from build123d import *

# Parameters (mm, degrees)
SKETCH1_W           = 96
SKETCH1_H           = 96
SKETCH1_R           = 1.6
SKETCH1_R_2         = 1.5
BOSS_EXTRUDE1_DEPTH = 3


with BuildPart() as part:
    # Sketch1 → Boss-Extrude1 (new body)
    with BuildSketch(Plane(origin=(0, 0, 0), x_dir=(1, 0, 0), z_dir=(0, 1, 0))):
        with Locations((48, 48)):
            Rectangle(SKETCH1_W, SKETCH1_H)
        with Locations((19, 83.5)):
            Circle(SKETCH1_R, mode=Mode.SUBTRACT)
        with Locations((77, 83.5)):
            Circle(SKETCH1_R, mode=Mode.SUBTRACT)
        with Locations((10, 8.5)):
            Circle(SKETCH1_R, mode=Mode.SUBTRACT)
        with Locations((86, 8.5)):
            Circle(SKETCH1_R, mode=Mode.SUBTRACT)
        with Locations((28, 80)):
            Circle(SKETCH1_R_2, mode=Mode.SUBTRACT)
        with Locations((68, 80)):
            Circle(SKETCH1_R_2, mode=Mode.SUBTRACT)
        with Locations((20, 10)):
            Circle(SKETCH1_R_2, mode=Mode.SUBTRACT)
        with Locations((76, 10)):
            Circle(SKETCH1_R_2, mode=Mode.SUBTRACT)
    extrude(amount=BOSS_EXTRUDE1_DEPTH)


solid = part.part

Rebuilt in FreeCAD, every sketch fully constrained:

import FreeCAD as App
import Part
import Sketcher


def add_polygon(sketch, points):
    """Adds a closed chain of lines whose ends are joined by coincident constraints."""
    first, n = sketch.GeometryCount, len(points)
    for a, b in zip(points, points[1:] + points[:1]):
        sketch.addGeometry(Part.LineSegment(App.Vector(*a, 0), App.Vector(*b, 0)), False)
    for i in range(n):
        sketch.addConstraint(Sketcher.Constraint("Coincident", first + i, 2, first + (i + 1) % n, 1))

doc = App.newDocument("Part")
body = doc.addObject("PartDesign::Body", "Body")

# Sketch on XZ plane
sketch1 = body.newObject("Sketcher::SketchObject", "Sketch")
sketch1.AttachmentSupport = (doc.getObject("XZ_Plane"), [""])
sketch1.MapMode = "FlatFace"
add_polygon(sketch1, [(0, -96), (0, 0), (96, 0), (96, -96)])  # lines 0-3
sketch1.addGeometry(Part.Circle(App.Vector(10, -8.5, 0), App.Vector(0, 0, 1), 1.6), False)  # 4
sketch1.addGeometry(Part.Circle(App.Vector(20, -10, 0), App.Vector(0, 0, 1), 1.5), False)  # 5
sketch1.addGeometry(Part.Circle(App.Vector(76, -10, 0), App.Vector(0, 0, 1), 1.5), False)  # 6
sketch1.addGeometry(Part.Circle(App.Vector(86, -8.5, 0), App.Vector(0, 0, 1), 1.6), False)  # 7
sketch1.addGeometry(Part.Circle(App.Vector(28, -80, 0), App.Vector(0, 0, 1), 1.5), False)  # 8
sketch1.addGeometry(Part.Circle(App.Vector(19, -83.5, 0), App.Vector(0, 0, 1), 1.6), False)  # 9
sketch1.addGeometry(Part.Circle(App.Vector(68, -80, 0), App.Vector(0, 0, 1), 1.5), False)  # 10
sketch1.addGeometry(Part.Circle(App.Vector(77, -83.5, 0), App.Vector(0, 0, 1), 1.6), False)  # 11
sketch1.addConstraint([
    Sketcher.Constraint("Vertical", 0),
    Sketcher.Constraint("Horizontal", 1),
    Sketcher.Constraint("Vertical", 2),
    Sketcher.Constraint("Horizontal", 3),
    Sketcher.Constraint("Coincident", 0, 2, -1, 1),
    Sketcher.Constraint("Equal", 5, 6),
    Sketcher.Constraint("Equal", 4, 7),
    Sketcher.Constraint("Equal", 6, 8),
    Sketcher.Constraint("Equal", 7, 9),
    Sketcher.Constraint("Equal", 8, 10),
    Sketcher.Constraint("Equal", 9, 11),
    Sketcher.Constraint("Horizontal", 5, 3, 6, 3),
    Sketcher.Constraint("Horizontal", 4, 3, 7, 3),
    Sketcher.Constraint("Horizontal", 8, 3, 10, 3),
    Sketcher.Constraint("Horizontal", 9, 3, 11, 3),
    Sketcher.Constraint("Equal", 3, 0),
    Sketcher.Constraint("Diameter", 5, 3.0),
    Sketcher.Constraint("Diameter", 4, 3.2),
    Sketcher.Constraint("DistanceX", 1, 1, 1, 2, 96.0),
    Sketcher.Constraint("DistanceX", -1, 1, 4, 3, 10.0),
    Sketcher.Constraint("DistanceX", -1, 1, 5, 3, 20.0),
    Sketcher.Constraint("DistanceY", 5, 3, -1, 1, 10.0),
    Sketcher.Constraint("DistanceX", -1, 1, 6, 3, 76.0),
    Sketcher.Constraint("DistanceX", -1, 1, 7, 3, 86.0),
    Sketcher.Constraint("DistanceX", -1, 1, 8, 3, 28.0),
    Sketcher.Constraint("DistanceY", 8, 3, -1, 1, 80.0),
    Sketcher.Constraint("DistanceX", -1, 1, 9, 3, 19.0),
    Sketcher.Constraint("DistanceX", -1, 1, 10, 3, 68.0),
    Sketcher.Constraint("DistanceX", -1, 1, 11, 3, 77.0),
    Sketcher.Constraint("DistanceY", 9, 3, 4, 3, 75.0),
    Sketcher.Constraint("DistanceY", 4, 3, -1, 1, 8.5),
])
pad1 = body.newObject("PartDesign::Pad", "Pad")
pad1.Profile = sketch1
pad1.Length = 3
pad1.Reversed = True

doc.recompute()
